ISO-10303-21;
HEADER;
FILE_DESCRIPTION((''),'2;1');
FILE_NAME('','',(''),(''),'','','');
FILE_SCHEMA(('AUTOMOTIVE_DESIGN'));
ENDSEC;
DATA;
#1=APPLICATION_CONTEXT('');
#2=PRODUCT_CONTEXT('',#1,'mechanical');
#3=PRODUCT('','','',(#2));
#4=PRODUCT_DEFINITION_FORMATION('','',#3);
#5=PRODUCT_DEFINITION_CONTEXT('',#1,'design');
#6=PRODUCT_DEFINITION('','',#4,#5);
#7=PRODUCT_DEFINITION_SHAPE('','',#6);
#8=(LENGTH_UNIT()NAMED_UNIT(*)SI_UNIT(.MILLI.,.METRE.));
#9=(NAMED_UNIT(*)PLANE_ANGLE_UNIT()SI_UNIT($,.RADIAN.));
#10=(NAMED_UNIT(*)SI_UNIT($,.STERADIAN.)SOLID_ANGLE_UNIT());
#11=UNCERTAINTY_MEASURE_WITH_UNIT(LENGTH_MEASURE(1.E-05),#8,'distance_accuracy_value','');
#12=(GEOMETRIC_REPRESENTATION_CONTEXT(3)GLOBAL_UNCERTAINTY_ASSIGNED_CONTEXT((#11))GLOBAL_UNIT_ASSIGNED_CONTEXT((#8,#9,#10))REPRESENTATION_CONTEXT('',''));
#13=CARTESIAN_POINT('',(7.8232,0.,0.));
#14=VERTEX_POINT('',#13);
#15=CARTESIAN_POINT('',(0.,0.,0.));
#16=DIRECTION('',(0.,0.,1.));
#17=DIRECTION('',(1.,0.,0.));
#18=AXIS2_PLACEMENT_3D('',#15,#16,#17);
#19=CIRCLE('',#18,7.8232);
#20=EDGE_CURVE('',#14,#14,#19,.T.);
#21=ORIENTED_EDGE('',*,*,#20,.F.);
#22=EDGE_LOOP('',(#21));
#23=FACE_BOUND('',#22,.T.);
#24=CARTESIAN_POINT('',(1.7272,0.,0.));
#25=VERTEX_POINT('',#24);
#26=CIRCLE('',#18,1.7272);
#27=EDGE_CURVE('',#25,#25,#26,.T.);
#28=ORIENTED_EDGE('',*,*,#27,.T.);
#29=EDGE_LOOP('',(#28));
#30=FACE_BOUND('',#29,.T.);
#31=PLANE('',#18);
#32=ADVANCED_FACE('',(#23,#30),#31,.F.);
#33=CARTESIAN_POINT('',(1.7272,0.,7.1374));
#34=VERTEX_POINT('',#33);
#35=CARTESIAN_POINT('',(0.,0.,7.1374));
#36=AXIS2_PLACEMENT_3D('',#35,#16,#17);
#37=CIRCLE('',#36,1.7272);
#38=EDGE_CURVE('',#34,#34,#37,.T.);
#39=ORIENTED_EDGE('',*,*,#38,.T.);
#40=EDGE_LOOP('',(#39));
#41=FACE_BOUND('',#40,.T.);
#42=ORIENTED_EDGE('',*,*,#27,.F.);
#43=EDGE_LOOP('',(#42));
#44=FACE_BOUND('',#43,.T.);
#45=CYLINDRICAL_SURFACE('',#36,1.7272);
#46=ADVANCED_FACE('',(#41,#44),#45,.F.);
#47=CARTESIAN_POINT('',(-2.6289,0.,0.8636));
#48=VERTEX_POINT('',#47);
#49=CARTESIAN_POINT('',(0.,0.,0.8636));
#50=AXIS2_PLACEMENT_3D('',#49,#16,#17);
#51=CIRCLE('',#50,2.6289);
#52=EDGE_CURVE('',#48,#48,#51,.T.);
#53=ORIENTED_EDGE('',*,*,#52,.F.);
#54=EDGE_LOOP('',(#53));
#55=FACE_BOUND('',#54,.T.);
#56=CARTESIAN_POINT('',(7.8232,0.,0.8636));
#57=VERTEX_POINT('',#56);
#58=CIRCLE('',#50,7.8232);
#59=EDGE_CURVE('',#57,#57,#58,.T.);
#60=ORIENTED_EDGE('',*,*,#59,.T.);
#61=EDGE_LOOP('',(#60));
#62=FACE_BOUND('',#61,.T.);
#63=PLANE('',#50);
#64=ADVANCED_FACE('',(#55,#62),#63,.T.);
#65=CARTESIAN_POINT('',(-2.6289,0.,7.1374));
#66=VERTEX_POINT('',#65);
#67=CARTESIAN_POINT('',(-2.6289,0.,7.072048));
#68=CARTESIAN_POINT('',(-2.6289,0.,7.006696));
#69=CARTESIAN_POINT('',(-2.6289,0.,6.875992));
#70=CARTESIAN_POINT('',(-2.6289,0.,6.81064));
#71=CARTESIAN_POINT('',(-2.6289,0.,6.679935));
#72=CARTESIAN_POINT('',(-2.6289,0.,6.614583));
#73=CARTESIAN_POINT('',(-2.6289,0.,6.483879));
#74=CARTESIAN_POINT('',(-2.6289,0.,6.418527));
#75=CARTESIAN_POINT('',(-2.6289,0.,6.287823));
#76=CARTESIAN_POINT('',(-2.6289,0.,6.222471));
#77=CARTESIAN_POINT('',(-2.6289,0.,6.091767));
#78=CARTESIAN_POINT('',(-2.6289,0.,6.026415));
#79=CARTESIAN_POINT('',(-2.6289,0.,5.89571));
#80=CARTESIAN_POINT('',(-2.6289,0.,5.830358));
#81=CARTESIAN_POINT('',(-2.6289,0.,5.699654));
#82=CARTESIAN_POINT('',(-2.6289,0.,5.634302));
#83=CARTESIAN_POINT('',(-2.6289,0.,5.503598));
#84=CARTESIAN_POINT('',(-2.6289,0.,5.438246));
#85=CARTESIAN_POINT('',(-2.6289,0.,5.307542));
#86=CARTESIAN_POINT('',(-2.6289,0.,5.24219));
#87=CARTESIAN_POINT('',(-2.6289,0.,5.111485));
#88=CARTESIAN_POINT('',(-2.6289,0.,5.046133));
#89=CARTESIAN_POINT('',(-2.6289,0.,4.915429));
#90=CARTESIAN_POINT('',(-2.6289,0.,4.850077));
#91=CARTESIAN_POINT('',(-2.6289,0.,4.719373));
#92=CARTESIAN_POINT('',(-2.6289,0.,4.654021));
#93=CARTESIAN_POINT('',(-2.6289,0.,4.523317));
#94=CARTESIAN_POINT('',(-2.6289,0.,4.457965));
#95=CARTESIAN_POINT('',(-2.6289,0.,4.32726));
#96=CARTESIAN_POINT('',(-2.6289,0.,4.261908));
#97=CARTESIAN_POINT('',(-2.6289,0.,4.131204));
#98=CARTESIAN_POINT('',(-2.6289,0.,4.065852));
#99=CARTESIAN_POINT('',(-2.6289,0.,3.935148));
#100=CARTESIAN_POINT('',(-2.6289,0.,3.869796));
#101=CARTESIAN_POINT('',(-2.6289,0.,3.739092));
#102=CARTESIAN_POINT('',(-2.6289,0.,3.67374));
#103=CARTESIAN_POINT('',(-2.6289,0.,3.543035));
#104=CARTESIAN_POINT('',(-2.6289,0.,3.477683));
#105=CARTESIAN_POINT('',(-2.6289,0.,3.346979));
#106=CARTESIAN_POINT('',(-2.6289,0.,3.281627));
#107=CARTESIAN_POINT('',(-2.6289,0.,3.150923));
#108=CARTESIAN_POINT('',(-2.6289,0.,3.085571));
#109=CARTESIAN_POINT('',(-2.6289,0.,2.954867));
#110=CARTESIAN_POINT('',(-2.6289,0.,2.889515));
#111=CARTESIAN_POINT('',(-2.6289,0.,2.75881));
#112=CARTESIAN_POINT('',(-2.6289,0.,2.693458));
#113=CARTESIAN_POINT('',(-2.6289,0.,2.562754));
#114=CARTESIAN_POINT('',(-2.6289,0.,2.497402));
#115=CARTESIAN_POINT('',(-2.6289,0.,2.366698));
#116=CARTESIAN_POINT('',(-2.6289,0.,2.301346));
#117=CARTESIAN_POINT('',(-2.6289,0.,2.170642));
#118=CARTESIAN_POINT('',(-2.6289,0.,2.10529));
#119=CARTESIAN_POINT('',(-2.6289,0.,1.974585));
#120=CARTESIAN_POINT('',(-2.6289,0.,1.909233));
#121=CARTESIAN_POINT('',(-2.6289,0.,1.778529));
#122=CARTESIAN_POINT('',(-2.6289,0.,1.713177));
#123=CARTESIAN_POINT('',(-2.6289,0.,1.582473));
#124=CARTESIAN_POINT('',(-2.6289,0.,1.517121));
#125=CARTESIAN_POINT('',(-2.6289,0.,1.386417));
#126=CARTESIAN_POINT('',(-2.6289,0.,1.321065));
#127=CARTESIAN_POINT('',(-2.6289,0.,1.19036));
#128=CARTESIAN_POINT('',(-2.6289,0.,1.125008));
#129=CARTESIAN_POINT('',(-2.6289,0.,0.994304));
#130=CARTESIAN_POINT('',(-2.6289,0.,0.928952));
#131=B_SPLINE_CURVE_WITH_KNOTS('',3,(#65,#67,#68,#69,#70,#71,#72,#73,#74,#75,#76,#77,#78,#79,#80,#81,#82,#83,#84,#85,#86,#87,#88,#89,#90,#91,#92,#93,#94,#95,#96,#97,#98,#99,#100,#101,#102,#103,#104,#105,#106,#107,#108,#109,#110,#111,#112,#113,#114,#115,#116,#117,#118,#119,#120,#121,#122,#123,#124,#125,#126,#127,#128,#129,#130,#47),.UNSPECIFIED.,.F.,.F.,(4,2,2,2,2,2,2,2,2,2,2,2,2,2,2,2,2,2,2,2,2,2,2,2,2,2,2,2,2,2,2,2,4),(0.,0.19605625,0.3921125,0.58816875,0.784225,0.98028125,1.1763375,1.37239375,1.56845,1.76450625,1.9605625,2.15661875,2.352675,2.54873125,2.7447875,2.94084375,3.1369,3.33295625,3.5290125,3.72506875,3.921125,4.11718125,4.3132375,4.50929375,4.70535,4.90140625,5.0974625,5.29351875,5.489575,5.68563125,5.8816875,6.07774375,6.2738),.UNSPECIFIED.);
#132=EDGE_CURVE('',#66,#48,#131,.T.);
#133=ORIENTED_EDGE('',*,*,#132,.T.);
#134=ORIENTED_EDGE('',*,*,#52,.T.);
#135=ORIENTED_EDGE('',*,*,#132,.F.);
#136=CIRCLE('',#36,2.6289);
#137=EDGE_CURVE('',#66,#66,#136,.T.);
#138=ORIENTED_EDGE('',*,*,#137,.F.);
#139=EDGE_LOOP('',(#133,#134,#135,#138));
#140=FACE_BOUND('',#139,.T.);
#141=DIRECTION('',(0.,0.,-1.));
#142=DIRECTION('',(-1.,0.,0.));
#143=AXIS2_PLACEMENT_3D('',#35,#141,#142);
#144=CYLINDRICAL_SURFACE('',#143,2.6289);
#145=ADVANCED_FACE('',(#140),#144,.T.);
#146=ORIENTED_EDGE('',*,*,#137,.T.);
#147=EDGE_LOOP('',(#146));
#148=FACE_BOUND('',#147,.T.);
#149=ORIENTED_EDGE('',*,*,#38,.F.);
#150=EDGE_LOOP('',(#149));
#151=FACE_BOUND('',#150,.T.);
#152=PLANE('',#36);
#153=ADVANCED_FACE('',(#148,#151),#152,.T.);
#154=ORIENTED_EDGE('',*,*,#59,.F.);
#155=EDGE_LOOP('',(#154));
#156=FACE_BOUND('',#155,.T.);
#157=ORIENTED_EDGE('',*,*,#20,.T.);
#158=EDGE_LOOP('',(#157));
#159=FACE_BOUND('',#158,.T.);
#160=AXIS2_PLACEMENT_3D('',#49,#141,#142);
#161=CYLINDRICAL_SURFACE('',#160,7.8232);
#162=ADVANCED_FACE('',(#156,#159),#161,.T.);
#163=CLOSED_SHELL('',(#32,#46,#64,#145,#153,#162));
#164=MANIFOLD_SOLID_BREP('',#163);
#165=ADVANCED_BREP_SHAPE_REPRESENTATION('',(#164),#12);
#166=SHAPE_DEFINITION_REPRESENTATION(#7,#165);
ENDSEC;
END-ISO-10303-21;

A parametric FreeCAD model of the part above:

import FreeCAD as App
import Part
import Sketcher
from FreeCAD import Vector
Q = App.Units.Quantity

doc = App.newDocument("Part")
params = doc.addObject("Spreadsheet::Sheet", "Params")
for row, (alias, value) in enumerate([
    ("sketch1_diameter", "0.616 in"),
    ("pad1_length", "0.034 in"),
    ("sketch2_diameter", "0.207 in"),
    ("pad2_length", "0.247 in"),
    ("sketch3_diameter", "0.136 in"),
    ("hole_diameter", "0.136 in"),
], start=1):
    params.set(f"A{row}", alias)
    params.set(f"B{row}", "=" + value)
    params.setAlias(f"B{row}", alias)

body = doc.addObject("PartDesign::Body", "Body")

# Sketch on XY plane
sketch1 = body.newObject("Sketcher::SketchObject", "Sketch")
sketch1.AttachmentSupport = (doc.getObject("XY_Plane"), [""])
sketch1.MapMode = "FlatFace"
sketch1.addGeometry(Part.Circle(Vector(0, 0, 0), Vector(0, 0, 1), 8), False)
sketch1.addConstraint(Sketcher.Constraint("Coincident", 0, 3, -1, 1))
sketch1.addConstraint(Sketcher.Constraint("Diameter", 0, Q("0.616 in")))
sketch1.setExpression("Constraints[1]", "Params.sketch1_diameter")
pad1 = body.newObject("PartDesign::Pad", "Pad")
pad1.Profile = sketch1
pad1.setExpression("Length", "Params.pad1_length")

# Sketch on XY plane
sketch2 = body.newObject("Sketcher::SketchObject", "Sketch001")
sketch2.AttachmentSupport = (doc.getObject("XY_Plane"), [""])
sketch2.MapMode = "FlatFace"
sketch2.AttachmentOffset = App.Placement(Vector(0, 0, 0.034 * 25.4), App.Rotation())
sketch2.addGeometry(Part.Circle(Vector(0, 0, 0), Vector(0, 0, 1), 2.6), False)
sketch2.addConstraint(Sketcher.Constraint("Coincident", 0, 3, -1, 1))
sketch2.addConstraint(Sketcher.Constraint("Diameter", 0, Q("0.207 in")))
sketch2.setExpression("Constraints[1]", "Params.sketch2_diameter")
pad2 = body.newObject("PartDesign::Pad", "Pad001")
pad2.Profile = sketch2
pad2.setExpression("Length", "Params.pad2_length")

# Sketch on XY plane
sketch3 = body.newObject("Sketcher::SketchObject", "Sketch002")
sketch3.AttachmentSupport = (doc.getObject("XY_Plane"), [""])
sketch3.MapMode = "FlatFace"
sketch3.AttachmentOffset = App.Placement(Vector(0, 0, 0.281 * 25.4), App.Rotation())
sketch3.addGeometry(Part.Circle(Vector(0, 0, 0), Vector(0, 0, 1), 1.7), False)
sketch3.addConstraint(Sketcher.Constraint("Coincident", 0, 3, -1, 1))
sketch3.addConstraint(Sketcher.Constraint("Diameter", 0, Q("0.136 in")))
sketch3.setExpression("Constraints[1]", "Params.sketch3_diameter")
doc.recompute()
hole = body.newObject("PartDesign::Hole", "Hole")
hole.Profile = sketch3
hole.ThreadType = "None"
hole.setExpression("Diameter", "Params.hole_diameter")
hole.DepthType = "ThroughAll"

doc.recompute()
